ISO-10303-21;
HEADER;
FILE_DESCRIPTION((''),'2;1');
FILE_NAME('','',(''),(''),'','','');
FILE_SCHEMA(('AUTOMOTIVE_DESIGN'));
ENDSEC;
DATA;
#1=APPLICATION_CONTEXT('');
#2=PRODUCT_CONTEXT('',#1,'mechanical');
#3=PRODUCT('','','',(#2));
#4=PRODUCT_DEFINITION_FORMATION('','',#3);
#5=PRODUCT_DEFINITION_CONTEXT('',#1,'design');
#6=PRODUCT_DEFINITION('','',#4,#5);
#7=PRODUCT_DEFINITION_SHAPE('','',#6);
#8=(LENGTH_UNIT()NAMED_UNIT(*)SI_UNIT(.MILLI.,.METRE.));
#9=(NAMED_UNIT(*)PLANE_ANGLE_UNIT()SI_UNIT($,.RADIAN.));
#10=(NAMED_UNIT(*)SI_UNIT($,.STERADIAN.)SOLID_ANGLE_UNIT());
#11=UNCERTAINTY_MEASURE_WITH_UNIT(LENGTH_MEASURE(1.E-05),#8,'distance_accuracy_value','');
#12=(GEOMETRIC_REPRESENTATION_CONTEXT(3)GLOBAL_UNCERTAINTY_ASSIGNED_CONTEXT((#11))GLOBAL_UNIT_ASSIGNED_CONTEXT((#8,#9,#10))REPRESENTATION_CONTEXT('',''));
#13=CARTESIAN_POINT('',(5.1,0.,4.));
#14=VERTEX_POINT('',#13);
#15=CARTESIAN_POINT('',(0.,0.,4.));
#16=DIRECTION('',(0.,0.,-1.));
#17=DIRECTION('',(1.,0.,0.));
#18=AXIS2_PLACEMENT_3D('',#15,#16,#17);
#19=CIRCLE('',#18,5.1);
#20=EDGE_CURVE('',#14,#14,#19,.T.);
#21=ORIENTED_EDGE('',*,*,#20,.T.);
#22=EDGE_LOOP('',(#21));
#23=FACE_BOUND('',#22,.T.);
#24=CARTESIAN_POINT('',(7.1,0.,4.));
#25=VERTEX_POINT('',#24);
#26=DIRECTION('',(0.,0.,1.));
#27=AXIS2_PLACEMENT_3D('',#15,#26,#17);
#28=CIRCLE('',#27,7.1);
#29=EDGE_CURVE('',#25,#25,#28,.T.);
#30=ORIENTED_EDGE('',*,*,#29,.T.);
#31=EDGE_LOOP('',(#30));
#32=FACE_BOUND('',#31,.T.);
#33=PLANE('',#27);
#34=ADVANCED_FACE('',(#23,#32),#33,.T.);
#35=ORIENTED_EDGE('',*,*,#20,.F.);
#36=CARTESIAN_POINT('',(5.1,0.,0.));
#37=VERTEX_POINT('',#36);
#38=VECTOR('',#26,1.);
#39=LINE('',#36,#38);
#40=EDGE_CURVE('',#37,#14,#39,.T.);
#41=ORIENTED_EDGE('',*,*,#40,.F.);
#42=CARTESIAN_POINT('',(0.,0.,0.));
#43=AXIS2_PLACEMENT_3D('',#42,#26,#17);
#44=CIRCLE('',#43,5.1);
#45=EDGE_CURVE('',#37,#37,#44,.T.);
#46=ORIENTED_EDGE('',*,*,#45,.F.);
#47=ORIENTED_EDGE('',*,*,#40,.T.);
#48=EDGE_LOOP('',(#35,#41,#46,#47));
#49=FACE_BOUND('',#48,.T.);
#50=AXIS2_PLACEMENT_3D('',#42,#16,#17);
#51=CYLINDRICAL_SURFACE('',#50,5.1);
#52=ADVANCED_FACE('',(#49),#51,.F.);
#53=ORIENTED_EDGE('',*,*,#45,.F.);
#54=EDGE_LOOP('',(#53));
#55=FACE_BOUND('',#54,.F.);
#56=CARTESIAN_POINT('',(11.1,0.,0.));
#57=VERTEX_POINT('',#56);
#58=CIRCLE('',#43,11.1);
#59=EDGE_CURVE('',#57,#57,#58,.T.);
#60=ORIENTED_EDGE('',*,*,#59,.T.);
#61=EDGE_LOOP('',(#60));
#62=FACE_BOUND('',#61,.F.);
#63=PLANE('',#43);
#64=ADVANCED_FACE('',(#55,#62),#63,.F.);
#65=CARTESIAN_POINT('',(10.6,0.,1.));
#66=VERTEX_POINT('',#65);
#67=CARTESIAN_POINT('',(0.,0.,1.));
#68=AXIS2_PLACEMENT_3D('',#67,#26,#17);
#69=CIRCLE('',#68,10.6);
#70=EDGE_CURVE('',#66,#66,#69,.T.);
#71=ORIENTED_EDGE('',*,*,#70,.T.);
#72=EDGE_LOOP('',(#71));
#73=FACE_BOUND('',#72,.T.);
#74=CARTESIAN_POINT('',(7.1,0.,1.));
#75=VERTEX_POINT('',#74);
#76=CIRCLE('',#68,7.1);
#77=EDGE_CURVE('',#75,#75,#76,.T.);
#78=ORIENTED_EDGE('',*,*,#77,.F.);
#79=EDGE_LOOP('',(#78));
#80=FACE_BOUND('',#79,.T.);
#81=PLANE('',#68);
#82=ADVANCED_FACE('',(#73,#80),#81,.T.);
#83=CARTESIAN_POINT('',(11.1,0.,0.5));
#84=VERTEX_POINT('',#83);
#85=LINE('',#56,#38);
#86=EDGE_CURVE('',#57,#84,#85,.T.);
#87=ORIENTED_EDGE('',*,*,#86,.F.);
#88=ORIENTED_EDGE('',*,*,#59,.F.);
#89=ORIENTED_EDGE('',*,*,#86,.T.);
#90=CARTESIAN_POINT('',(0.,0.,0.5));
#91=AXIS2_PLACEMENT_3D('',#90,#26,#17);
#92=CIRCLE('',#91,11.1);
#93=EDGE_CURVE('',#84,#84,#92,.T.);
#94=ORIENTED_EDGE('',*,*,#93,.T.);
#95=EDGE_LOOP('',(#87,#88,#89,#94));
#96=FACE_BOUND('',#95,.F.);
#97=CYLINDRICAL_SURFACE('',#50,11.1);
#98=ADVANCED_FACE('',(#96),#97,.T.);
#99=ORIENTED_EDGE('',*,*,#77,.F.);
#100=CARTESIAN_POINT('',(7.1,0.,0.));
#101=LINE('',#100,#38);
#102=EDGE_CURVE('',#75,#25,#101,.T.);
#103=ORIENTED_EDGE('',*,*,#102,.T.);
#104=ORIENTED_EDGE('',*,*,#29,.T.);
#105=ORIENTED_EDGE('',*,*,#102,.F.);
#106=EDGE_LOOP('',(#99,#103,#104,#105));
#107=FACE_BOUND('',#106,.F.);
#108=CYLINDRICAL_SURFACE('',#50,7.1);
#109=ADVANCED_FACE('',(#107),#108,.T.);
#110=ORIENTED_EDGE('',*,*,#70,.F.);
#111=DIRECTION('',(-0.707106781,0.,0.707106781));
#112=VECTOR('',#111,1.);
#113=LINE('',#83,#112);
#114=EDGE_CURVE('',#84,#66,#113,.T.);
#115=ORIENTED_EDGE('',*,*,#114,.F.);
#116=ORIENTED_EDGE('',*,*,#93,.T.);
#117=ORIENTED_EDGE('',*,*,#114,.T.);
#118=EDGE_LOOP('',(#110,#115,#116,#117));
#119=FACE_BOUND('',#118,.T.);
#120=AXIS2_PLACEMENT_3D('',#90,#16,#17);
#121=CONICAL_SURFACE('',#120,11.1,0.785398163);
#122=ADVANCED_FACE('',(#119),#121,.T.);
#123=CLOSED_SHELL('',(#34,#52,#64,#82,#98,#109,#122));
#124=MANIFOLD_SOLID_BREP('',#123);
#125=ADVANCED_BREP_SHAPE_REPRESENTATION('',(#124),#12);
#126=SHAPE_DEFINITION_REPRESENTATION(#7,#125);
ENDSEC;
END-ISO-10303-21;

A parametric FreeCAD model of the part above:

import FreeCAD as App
import Part
import Sketcher
from FreeCAD import Vector


def edges_at(feature, points):
    """Names of the edges that pass closest to the given points."""
    edges = feature.Shape.Edges
    near = lambda p: min(range(len(edges)), key=lambda i: edges[i].distToShape(Part.Vertex(*p))[0])
    return sorted({f"Edge{near(p) + 1}" for p in points})

doc = App.newDocument("Part")
body = doc.addObject("PartDesign::Body", "Body")

# Sketch on XY plane
sketch1 = body.newObject("Sketcher::SketchObject", "Sketch")
sketch1.AttachmentSupport = (doc.getObject("XY_Plane"), [""])
sketch1.MapMode = "FlatFace"
sketch1.addGeometry([
    Part.Circle(Vector(0, 0, 0), Vector(0, 0, 1), 7.1),
    Part.Circle(Vector(0, 0, 0), Vector(0, 0, 1), 1.6),
], False)
sketch1.addConstraint([
    Sketcher.Constraint("Coincident", 0, 3, -1, 1),
    Sketcher.Constraint("Coincident", 1, 3, -1, 1),
    Sketcher.Constraint("Diameter", 0, 14.2),
    Sketcher.Constraint("Diameter", 1, 3.2),
])
pad1 = body.newObject("PartDesign::Pad", "Pad")
pad1.Profile = sketch1
pad1.Length = 4

# Sketch on XY plane
sketch2 = body.newObject("Sketcher::SketchObject", "Sketch001")
sketch2.AttachmentSupport = (doc.getObject("XY_Plane"), [""])
sketch2.MapMode = "FlatFace"
sketch2.addGeometry([
    Part.Circle(Vector(0, 0, 0), Vector(0, 0, 1), 5.1),
    Part.Circle(Vector(0, 0, 0), Vector(0, 0, 1), 1.6),
], False)
sketch2.addConstraint([
    Sketcher.Constraint("Coincident", 0, 3, -1, 1),
    Sketcher.Constraint("Coincident", 1, 3, -1, 1),
    Sketcher.Constraint("Diameter", 0, 10.2),
    Sketcher.Constraint("Diameter", 1, 3.2),
])
pocket1 = body.newObject("PartDesign::Pocket", "Pocket")
pocket1.Profile = sketch2
pocket1.Length = 8.2
pocket1.Reversed = True

# Sketch on XY plane
sketch3 = body.newObject("Sketcher::SketchObject", "Sketch002")
sketch3.AttachmentSupport = (doc.getObject("XY_Plane"), [""])
sketch3.MapMode = "FlatFace"
sketch3.addGeometry([
    Part.Circle(Vector(0, 0, 0), Vector(0, 0, 1), 11),
    Part.Circle(Vector(0, 0, 0), Vector(0, 0, 1), 7),
], False)
sketch3.addConstraint([
    Sketcher.Constraint("Coincident", 0, 3, -1, 1),
    Sketcher.Constraint("Coincident", 1, 3, -1, 1),
    Sketcher.Constraint("Diameter", 0, 22.2),
    Sketcher.Constraint("Diameter", 1, 14.2),
])
pad2 = body.newObject("PartDesign::Pad", "Pad001")
pad2.Profile = sketch3
pad2.Length = 1
doc.recompute()

chamfer = body.newObject("PartDesign::Chamfer", "Chamfer")
chamfer.Base = (pad2, edges_at(pad2, [(-11.1, 0, 1)]))
chamfer.Size = 0.5

doc.recompute()
